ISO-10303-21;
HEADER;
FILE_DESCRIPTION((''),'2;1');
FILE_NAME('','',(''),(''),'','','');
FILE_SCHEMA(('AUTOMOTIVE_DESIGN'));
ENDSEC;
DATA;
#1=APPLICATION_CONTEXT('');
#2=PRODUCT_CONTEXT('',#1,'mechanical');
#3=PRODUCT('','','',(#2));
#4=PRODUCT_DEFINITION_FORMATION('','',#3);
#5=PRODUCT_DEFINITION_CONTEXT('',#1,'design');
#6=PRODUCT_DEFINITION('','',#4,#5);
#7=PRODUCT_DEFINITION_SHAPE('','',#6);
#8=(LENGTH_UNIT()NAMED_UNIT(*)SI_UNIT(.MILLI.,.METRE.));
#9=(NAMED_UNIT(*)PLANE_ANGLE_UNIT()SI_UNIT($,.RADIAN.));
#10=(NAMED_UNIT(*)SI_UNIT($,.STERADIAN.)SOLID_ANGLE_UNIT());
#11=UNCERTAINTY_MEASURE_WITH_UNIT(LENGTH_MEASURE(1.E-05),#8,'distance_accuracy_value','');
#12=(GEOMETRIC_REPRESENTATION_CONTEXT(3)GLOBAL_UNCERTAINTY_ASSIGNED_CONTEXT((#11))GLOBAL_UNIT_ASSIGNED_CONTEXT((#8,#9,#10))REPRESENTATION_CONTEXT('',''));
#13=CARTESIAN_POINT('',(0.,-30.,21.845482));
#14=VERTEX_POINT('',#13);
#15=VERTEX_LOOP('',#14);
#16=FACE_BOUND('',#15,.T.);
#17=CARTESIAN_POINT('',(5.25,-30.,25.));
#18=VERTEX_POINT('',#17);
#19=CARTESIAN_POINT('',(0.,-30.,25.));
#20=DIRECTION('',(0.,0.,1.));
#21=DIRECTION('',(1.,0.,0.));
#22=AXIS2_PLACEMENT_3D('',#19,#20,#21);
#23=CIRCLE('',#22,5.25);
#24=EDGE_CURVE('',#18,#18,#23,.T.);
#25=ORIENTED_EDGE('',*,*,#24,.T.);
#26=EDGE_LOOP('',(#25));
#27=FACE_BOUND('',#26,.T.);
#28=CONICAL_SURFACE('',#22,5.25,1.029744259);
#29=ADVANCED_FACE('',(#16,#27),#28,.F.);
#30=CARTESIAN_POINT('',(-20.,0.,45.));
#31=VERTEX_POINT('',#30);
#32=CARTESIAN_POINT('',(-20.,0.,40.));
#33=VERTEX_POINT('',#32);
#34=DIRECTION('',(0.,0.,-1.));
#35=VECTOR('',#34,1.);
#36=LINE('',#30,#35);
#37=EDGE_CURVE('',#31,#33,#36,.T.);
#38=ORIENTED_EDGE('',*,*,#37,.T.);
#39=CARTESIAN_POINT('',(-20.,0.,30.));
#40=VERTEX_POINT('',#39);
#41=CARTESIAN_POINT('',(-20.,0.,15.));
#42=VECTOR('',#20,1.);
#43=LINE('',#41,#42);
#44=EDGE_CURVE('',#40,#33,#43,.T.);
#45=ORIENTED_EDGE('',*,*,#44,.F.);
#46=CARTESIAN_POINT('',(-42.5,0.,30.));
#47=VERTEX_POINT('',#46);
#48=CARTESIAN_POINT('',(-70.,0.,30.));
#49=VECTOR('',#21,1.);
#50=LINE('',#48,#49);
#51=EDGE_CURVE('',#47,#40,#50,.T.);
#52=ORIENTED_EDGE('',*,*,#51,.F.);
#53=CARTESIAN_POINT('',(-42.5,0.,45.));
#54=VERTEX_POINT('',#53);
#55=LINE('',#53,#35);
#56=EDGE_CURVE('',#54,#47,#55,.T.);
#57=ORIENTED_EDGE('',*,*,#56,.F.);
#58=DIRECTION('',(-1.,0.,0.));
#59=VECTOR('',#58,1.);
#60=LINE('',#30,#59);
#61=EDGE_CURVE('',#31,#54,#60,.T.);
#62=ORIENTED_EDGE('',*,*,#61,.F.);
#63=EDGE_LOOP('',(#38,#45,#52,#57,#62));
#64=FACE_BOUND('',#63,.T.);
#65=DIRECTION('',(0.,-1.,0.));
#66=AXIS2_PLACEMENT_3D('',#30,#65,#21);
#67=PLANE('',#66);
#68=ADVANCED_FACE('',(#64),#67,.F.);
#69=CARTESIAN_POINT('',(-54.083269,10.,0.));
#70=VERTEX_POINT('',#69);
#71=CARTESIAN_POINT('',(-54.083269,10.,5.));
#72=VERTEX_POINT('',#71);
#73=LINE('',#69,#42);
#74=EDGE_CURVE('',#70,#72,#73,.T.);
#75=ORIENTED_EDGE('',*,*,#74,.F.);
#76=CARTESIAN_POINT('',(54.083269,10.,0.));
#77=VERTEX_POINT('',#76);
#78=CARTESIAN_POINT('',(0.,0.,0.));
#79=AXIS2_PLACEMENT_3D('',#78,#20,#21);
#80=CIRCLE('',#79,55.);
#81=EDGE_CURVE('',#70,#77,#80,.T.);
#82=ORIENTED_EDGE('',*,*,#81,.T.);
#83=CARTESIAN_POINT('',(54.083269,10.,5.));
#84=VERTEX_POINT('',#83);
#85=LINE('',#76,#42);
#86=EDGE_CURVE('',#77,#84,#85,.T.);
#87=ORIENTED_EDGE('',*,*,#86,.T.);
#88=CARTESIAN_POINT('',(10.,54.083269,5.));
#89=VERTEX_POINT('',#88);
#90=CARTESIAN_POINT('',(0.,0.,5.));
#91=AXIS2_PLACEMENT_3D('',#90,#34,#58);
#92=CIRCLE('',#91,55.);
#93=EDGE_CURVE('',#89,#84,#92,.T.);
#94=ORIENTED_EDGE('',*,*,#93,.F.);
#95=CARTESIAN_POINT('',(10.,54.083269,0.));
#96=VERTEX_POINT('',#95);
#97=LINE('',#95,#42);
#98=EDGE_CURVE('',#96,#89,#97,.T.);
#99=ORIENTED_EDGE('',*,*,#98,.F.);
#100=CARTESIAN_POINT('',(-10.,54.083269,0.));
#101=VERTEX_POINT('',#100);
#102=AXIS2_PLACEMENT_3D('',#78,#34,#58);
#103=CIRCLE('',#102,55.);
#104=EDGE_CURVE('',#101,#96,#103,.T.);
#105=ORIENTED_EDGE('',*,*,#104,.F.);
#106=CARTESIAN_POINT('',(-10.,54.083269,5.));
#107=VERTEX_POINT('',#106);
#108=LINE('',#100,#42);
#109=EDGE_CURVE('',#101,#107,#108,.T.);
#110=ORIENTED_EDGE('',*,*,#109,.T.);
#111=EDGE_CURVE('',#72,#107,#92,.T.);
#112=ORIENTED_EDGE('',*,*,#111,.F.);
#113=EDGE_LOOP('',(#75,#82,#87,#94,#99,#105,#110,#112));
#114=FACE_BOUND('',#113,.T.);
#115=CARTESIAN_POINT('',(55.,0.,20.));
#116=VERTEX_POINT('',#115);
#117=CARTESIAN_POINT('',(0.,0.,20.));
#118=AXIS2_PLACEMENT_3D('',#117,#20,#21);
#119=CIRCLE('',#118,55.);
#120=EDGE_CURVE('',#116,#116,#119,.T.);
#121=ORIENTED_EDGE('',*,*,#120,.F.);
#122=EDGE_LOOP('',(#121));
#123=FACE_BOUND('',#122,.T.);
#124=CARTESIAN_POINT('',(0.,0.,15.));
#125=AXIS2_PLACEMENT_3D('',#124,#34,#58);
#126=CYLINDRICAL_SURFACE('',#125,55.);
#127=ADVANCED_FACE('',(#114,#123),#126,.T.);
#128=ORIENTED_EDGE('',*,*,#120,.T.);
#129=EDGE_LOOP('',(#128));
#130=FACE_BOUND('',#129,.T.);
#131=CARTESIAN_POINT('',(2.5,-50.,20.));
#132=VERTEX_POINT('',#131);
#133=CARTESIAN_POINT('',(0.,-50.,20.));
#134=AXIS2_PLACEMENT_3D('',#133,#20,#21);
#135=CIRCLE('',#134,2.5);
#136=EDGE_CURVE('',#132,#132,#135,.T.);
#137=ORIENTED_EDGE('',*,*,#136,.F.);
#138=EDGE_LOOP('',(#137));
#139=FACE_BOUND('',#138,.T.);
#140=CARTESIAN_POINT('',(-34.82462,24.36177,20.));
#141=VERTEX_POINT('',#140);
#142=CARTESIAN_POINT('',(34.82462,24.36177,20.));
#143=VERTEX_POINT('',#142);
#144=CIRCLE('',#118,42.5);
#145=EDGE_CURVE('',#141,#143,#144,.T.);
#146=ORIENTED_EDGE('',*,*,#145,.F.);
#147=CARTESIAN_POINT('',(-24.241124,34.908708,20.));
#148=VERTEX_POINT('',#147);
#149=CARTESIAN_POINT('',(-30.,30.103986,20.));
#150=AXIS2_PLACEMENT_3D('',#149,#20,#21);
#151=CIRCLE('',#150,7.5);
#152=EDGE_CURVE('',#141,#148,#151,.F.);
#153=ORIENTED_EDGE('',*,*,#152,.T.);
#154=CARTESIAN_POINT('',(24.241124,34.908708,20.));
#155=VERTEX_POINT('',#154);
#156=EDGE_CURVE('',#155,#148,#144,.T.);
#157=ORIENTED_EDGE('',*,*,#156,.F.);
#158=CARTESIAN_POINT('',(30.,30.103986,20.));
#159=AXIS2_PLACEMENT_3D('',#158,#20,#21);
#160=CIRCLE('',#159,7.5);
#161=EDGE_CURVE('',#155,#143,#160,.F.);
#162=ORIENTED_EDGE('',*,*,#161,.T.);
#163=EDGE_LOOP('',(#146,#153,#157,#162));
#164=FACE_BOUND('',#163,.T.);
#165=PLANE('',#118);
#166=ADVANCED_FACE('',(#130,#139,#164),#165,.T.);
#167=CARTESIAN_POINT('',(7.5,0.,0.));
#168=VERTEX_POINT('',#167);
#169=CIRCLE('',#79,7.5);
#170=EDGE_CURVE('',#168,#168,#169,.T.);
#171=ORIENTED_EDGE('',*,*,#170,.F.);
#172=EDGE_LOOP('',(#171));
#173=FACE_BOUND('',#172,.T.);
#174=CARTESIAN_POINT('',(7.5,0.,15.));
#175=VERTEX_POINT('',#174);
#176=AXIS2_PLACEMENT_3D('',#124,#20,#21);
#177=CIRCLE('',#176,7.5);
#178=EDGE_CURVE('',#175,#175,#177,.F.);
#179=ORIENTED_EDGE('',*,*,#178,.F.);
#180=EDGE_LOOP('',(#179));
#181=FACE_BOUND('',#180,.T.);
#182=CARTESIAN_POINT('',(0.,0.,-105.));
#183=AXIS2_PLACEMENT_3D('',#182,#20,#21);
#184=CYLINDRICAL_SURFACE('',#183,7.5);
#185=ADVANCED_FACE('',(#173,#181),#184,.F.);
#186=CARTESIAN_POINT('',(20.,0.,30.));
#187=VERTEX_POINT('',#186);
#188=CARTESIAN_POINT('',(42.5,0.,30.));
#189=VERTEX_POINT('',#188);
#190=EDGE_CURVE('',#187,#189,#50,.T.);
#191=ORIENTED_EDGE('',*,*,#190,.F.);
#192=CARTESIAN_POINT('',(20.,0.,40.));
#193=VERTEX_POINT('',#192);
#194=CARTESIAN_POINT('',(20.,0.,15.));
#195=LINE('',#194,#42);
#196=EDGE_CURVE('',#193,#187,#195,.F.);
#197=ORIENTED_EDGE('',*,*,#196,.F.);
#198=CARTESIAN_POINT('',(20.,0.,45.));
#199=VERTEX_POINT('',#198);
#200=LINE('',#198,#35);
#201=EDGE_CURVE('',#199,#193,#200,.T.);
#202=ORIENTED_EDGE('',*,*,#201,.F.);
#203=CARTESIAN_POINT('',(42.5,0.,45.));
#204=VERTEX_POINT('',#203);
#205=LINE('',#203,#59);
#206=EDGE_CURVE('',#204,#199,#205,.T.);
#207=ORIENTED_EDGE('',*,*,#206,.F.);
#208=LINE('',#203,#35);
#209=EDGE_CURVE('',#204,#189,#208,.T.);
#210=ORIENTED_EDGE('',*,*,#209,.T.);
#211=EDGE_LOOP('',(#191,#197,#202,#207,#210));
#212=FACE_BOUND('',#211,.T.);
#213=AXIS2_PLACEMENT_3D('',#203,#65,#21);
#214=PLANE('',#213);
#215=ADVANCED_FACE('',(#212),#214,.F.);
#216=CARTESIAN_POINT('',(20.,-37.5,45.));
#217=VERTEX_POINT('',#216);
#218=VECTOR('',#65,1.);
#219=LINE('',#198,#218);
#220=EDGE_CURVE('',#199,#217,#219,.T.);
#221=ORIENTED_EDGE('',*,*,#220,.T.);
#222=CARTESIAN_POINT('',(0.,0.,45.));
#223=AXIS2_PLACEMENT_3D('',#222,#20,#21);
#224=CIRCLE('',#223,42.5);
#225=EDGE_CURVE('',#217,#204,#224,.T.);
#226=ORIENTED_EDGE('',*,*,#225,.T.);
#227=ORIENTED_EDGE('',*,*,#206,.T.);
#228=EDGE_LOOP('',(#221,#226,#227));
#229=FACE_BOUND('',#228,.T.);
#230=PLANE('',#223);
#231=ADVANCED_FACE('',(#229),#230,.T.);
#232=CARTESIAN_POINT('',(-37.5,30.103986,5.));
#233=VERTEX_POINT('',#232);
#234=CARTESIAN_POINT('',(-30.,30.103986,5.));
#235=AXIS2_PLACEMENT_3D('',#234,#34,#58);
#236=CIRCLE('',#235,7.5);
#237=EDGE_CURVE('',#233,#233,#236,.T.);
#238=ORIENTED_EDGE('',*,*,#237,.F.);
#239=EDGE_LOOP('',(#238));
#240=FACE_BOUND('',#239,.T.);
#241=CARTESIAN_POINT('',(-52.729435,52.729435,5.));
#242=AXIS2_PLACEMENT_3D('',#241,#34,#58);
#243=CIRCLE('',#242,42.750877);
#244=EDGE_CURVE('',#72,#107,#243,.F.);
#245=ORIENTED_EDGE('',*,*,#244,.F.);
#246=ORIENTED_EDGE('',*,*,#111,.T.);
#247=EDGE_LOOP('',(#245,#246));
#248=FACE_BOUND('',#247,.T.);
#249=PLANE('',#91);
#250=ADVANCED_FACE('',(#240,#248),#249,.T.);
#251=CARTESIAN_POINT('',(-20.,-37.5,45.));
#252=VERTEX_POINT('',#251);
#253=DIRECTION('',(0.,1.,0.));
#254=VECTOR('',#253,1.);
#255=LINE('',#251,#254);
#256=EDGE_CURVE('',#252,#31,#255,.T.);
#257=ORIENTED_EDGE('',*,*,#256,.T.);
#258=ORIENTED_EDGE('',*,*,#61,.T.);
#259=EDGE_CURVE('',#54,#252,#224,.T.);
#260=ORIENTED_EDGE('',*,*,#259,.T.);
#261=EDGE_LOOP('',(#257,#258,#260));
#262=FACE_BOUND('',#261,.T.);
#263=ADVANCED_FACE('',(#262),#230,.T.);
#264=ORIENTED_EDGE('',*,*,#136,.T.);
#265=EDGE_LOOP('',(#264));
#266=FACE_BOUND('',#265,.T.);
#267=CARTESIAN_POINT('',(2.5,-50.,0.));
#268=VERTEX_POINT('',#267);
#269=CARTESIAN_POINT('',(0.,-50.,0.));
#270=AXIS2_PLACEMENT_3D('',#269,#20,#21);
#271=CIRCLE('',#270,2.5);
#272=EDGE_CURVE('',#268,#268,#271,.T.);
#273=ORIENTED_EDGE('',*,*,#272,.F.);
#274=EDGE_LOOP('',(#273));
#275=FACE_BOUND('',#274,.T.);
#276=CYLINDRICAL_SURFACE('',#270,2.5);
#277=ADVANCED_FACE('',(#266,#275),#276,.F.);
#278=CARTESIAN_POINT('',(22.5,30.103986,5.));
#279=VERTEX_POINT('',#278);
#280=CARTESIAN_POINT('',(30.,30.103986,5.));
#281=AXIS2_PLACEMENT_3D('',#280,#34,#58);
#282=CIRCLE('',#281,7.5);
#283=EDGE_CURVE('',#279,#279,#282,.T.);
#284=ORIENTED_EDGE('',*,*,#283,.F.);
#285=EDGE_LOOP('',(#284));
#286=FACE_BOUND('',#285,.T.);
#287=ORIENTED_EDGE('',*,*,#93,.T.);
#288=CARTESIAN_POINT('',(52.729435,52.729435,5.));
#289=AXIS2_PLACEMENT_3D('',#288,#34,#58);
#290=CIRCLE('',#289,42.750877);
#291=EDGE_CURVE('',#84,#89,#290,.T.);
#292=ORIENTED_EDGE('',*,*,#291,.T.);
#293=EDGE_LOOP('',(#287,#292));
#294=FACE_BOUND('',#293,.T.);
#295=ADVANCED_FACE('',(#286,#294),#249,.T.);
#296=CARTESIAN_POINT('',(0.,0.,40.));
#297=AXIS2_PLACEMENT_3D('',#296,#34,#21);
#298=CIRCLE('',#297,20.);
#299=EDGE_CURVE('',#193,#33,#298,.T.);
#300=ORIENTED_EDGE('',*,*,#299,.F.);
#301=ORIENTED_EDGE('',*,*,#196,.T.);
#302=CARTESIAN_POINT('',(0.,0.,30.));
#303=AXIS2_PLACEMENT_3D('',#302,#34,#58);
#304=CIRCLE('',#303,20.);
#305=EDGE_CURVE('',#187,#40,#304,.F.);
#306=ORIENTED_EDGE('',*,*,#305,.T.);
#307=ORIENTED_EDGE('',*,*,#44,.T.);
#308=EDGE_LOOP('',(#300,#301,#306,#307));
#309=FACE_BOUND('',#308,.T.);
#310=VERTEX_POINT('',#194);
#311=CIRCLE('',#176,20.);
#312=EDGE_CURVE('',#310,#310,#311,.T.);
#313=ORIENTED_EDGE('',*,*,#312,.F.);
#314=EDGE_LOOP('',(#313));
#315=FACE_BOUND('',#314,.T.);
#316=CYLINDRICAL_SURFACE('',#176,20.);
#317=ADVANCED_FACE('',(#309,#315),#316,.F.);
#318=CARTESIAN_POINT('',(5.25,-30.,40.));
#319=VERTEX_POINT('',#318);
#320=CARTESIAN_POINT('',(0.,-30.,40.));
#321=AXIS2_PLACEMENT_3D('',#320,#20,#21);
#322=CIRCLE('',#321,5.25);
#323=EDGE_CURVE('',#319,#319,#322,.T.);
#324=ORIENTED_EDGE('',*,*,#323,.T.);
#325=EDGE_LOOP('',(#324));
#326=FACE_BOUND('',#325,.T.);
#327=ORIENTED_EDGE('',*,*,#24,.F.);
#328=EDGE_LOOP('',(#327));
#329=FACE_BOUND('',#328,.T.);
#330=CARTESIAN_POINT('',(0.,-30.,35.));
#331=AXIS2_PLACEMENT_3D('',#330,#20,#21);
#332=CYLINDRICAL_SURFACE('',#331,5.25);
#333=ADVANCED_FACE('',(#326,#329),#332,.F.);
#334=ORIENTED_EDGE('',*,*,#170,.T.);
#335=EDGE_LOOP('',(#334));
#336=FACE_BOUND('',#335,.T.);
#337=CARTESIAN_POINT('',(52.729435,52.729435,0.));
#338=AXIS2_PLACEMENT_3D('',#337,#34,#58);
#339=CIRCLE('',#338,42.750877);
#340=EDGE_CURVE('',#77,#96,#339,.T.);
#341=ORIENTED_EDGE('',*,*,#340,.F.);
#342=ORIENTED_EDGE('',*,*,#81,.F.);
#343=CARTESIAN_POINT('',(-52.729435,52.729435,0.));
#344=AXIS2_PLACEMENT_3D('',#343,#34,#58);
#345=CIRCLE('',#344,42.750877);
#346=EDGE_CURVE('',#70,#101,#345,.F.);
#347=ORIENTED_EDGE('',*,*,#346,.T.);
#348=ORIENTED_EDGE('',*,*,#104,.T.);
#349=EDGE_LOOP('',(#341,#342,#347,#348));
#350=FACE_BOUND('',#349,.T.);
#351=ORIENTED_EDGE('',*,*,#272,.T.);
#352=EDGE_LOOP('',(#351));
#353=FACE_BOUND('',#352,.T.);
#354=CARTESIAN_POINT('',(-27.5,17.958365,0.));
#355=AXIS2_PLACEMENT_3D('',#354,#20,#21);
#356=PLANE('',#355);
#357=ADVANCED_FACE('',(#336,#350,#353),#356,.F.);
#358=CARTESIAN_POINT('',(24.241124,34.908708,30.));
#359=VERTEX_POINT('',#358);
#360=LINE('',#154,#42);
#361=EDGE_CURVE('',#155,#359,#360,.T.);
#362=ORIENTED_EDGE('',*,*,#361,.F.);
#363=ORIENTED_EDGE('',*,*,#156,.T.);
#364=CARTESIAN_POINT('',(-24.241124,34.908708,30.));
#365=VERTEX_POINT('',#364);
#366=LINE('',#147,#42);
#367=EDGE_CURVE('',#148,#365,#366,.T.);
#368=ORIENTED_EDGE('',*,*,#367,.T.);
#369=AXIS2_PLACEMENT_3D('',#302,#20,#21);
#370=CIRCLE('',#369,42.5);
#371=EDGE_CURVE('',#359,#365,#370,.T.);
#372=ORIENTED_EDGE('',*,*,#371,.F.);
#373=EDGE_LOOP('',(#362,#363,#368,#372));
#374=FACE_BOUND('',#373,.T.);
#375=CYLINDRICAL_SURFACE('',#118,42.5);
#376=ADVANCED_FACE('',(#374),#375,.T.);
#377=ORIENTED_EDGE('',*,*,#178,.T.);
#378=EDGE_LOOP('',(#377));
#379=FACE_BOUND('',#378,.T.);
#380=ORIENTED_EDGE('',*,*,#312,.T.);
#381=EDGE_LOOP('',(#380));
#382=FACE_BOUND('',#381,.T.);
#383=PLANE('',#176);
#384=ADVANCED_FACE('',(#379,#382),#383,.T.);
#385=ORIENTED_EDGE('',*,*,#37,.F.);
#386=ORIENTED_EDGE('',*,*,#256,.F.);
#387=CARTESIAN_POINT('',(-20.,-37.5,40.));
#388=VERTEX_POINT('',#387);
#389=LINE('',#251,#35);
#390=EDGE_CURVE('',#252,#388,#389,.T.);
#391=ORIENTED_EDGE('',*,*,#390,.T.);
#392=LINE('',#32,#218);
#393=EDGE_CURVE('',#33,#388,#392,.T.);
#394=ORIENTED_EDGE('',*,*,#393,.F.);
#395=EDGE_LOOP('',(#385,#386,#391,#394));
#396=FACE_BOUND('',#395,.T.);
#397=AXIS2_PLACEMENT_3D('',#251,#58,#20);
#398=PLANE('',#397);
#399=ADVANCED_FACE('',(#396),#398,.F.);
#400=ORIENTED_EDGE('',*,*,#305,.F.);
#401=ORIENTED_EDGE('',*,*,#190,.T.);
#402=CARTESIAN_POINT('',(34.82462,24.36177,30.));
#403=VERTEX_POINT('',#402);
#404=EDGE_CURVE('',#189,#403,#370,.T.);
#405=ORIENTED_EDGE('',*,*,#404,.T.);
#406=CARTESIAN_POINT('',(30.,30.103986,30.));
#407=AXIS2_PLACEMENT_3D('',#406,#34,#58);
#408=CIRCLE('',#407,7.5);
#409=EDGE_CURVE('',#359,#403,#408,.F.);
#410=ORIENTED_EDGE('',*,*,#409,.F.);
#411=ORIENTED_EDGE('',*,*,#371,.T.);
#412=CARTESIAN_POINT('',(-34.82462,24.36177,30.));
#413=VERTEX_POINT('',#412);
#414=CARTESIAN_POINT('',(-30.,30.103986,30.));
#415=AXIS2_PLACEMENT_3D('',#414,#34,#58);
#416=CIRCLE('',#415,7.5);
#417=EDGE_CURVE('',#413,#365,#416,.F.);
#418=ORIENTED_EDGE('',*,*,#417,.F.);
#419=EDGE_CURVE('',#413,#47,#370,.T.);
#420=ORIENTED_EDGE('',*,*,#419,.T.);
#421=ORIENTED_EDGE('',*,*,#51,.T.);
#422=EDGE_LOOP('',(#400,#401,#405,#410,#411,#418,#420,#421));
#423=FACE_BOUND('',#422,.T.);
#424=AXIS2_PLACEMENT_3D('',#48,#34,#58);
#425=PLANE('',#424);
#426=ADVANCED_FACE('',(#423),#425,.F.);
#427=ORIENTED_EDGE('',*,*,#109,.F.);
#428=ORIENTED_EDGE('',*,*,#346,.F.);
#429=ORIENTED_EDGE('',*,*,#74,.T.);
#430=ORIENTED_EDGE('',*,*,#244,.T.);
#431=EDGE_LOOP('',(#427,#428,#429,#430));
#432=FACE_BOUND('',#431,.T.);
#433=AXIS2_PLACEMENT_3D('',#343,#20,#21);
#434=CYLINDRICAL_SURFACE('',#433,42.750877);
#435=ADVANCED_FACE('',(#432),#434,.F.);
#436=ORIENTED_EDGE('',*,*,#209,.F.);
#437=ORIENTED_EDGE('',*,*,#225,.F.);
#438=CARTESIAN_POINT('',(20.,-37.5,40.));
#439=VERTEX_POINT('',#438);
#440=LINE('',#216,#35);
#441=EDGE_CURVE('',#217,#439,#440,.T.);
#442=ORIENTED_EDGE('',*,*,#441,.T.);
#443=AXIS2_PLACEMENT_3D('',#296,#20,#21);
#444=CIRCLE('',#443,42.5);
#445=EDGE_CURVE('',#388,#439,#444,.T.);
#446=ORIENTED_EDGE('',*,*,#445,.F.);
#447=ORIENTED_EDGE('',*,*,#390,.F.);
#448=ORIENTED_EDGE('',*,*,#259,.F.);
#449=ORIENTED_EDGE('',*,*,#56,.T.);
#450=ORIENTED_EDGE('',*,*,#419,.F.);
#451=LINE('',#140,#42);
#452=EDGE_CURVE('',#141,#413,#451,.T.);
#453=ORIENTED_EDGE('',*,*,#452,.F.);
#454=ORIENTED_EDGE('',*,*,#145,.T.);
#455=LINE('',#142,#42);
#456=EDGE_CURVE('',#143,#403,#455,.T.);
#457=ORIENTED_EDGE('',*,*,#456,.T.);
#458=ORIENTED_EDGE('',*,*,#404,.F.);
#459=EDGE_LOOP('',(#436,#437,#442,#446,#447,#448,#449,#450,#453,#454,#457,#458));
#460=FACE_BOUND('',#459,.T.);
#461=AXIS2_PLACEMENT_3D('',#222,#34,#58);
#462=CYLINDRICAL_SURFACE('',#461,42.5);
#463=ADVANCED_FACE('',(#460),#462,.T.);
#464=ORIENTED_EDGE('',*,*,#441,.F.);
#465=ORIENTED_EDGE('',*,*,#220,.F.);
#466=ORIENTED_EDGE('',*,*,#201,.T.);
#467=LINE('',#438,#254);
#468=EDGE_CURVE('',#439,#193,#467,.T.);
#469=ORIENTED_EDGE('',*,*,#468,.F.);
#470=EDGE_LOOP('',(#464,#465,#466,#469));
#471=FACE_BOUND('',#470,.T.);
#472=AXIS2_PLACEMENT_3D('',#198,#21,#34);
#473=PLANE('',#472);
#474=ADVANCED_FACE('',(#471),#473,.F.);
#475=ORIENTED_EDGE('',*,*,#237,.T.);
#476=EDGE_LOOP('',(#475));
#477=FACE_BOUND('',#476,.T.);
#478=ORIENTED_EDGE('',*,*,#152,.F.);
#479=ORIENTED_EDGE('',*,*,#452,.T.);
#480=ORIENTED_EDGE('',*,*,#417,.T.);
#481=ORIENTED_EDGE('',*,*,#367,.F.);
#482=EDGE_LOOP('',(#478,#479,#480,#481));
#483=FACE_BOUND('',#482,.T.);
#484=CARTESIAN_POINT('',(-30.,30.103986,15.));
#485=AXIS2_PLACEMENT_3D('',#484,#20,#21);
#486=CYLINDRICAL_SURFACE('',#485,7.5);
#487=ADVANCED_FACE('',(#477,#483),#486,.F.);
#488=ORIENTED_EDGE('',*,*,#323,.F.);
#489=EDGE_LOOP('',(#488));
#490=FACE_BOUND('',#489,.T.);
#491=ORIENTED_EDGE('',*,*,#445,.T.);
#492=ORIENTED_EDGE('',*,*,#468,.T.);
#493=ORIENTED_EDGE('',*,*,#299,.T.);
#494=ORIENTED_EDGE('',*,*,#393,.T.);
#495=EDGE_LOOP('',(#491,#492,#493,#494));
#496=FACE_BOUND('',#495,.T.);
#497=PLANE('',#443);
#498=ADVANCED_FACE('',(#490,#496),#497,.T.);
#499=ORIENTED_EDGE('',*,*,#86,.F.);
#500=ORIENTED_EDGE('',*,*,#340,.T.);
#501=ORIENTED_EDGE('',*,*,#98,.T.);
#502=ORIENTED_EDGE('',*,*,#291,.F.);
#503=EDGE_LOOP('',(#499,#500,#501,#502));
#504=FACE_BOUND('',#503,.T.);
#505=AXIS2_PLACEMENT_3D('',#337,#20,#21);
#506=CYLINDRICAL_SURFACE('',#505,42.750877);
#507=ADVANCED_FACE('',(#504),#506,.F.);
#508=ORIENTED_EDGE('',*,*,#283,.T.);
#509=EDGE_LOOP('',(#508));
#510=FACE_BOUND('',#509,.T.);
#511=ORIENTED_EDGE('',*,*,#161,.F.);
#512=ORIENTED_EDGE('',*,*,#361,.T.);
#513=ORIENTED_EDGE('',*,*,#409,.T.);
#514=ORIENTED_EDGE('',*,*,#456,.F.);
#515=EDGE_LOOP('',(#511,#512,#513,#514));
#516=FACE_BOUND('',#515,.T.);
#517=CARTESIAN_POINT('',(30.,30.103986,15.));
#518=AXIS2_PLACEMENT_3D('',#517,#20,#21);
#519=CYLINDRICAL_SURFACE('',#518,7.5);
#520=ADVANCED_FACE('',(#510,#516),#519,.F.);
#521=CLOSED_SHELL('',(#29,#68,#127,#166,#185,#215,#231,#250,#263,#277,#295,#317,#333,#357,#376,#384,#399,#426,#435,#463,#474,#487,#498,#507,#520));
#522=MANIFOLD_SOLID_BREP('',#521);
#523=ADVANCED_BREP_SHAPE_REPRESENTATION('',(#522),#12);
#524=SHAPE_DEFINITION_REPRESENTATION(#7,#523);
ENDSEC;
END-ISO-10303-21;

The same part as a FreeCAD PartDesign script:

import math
import FreeCAD as App
import Part
import Sketcher
from FreeCAD import Vector
Q = App.Units.Quantity


def add_polygon(sketch, points):
    """Adds a closed chain of lines whose ends are joined by coincident constraints."""
    first, n = sketch.GeometryCount, len(points)
    for a, b in zip(points, points[1:] + points[:1]):
        sketch.addGeometry(Part.LineSegment(App.Vector(*a, 0), App.Vector(*b, 0)), False)
    for i in range(n):
        sketch.addConstraint(Sketcher.Constraint("Coincident", first + i, 2, first + (i + 1) % n, 1))

doc = App.newDocument("Part")
body = doc.addObject("PartDesign::Body", "Body")

sketch1 = doc.addObject("Sketcher::SketchObject", "Sketch")
body.addObject(sketch1)
sketch1.AttachmentSupport = (doc.XY_Plane, [""])
sketch1.MapMode = "FlatFace"
sketch1.addGeometry(Part.ArcOfCircle(Part.Circle(Vector(0, 0, 0), Vector(0, 0, 1), 55), math.radians(180), math.radians(360)), False)
sketch1.addGeometry(Part.ArcOfCircle(Part.Circle(Vector(55, 45, 0), Vector(0, 0, 1), 45), math.radians(-180), math.radians(-90)), False)
sketch1.addGeometry(Part.ArcOfCircle(Part.Circle(Vector(0, -9, 0), Vector(0, 0, 1), 55), math.radians(80), math.radians(100)), False)
sketch1.addGeometry(Part.ArcOfCircle(Part.Circle(Vector(-55, 45, 0), Vector(0, 0, 1), 45), math.radians(-90), math.radians(0)), False)
sketch1.addConstraint(Sketcher.Constraint("Coincident", 0, 2, 1, 2))
sketch1.addConstraint(Sketcher.Constraint("Coincident", 1, 1, 2, 1))
sketch1.addConstraint(Sketcher.Constraint("Coincident", 2, 2, 3, 2))
sketch1.addConstraint(Sketcher.Constraint("Coincident", 3, 1, 0, 1))
sketch1.addConstraint(Sketcher.Constraint("Coincident", 0, 3, -1, 1))
sketch1.addConstraint(Sketcher.Constraint("Equal", 0, 2))
sketch1.addConstraint(Sketcher.Constraint("Equal", 1, 3))
sketch1.addConstraint(Sketcher.Constraint("Symmetric", 1, 3, 3, 3, -2))
sketch1.addConstraint(Sketcher.Constraint("PointOnObject", 2, 3, -2))
sketch1.addConstraint(Sketcher.Constraint("PointOnObject", 0, 2, -1))
sketch1.addConstraint(Sketcher.Constraint("Horizontal", 3, 3, 1, 1))
sketch1.addConstraint(Sketcher.Constraint("Vertical", 1, 3, 0, 2))
sketch1.addConstraint(Sketcher.Constraint("Radius", 0, Q("55 mm")))
sketch1.addConstraint(Sketcher.Constraint("Radius", 1, Q("45 mm")))
pad1 = doc.addObject("PartDesign::Pad", "Pad")
body.addObject(pad1)
pad1.Profile = sketch1
pad1.Length = 15

sketch2 = doc.addObject("Sketcher::SketchObject", "Sketch001")
body.addObject(sketch2)
sketch2.AttachmentSupport = (doc.XY_Plane, [""])
sketch2.MapMode = "FlatFace"
sketch2.AttachmentOffset = App.Placement(Vector(0, 0, 15), App.Rotation())
sketch2.addGeometry(Part.Circle(Vector(0, 0, 0), Vector(0, 0, 1), 42), False)
sketch2.addConstraint(Sketcher.Constraint("Coincident", 0, 3, -1, 1))
sketch2.addConstraint(Sketcher.Constraint("Diameter", 0, Q("85 mm")))
pad2 = doc.addObject("PartDesign::Pad", "Pad001")
body.addObject(pad2)
pad2.Profile = sketch2
pad2.Length = 10

sketch3 = doc.addObject("Sketcher::SketchObject", "Sketch002")
body.addObject(sketch3)
sketch3.AttachmentSupport = (doc.XY_Plane, [""])
sketch3.MapMode = "FlatFace"
sketch3.AttachmentOffset = App.Placement(Vector(0, 0, 25), App.Rotation())
sketch3.addGeometry(Part.ArcOfCircle(Part.Circle(Vector(-30, 30, 0), Vector(0, 0, 1), 10), math.radians(-128), math.radians(38)), False)
sketch3.addGeometry(Part.ArcOfCircle(Part.Circle(Vector(0, 0, 0), Vector(0, 0, 1), 42), math.radians(122), math.radians(149)), False)
sketch3.addGeometry(Part.ArcOfCircle(Part.Circle(Vector(30, 30, 0), Vector(0, 0, 1), 10), math.radians(142), math.radians(308)), False)
sketch3.addGeometry(Part.ArcOfCircle(Part.Circle(Vector(0, 0, 0), Vector(0, 0, 1), 42), math.radians(31), math.radians(58)), False)
sketch3.addConstraint(Sketcher.Constraint("Coincident", 0, 1, 1, 2))
sketch3.addConstraint(Sketcher.Constraint("Coincident", 1, 1, 0, 2))
sketch3.addConstraint(Sketcher.Constraint("Coincident", 2, 1, 3, 2))
sketch3.addConstraint(Sketcher.Constraint("Coincident", 3, 1, 2, 2))
sketch3.addConstraint(Sketcher.Constraint("Coincident", 1, 3, -1, 1))
sketch3.addConstraint(Sketcher.Constraint("Coincident", 3, 3, -1, 1))
sketch3.addConstraint(Sketcher.Constraint("Equal", 0, 2))
sketch3.addConstraint(Sketcher.Constraint("Equal", 1, 3))
sketch3.addConstraint(Sketcher.Constraint("Symmetric", 0, 3, 2, 3, -2))
sketch3.addConstraint(Sketcher.Constraint("Radius", 0, Q("10 mm")))
sketch3.addConstraint(Sketcher.Constraint("Radius", 1, Q("42.5 mm")))
sketch3.addConstraint(Sketcher.Constraint("DistanceY", -1, 1, 0, 3, Q("30 mm")))
sketch3.addConstraint(Sketcher.Constraint("DistanceY", 0, 1, 1, 1, Q("14.068202 mm")))
pocket1 = doc.addObject("PartDesign::Pocket", "Pocket")
body.addObject(pocket1)
pocket1.Profile = sketch3
pocket1.Length = 10

sketch4 = doc.addObject("Sketcher::SketchObject", "Sketch003")
body.addObject(sketch4)
sketch4.AttachmentSupport = (doc.XY_Plane, [""])
sketch4.MapMode = "FlatFace"
sketch4.AttachmentOffset = App.Placement(Vector(0, 0, 25), App.Rotation())
sketch4.addGeometry(Part.Circle(Vector(0, 0, 0), Vector(0, 0, 1), 55), False)
sketch4.addConstraint(Sketcher.Constraint("Coincident", 0, 3, -1, 1))
sketch4.addConstraint(Sketcher.Constraint("Diameter", 0, Q("110 mm")))
pad3 = doc.addObject("PartDesign::Pad", "Pad002")
body.addObject(pad3)
pad3.Profile = sketch4
pad3.Length = 15

sketch5 = doc.addObject("Sketcher::SketchObject", "Sketch004")
body.addObject(sketch5)
sketch5.AttachmentSupport = (doc.XY_Plane, [""])
sketch5.MapMode = "FlatFace"
sketch5.AttachmentOffset = App.Placement(Vector(0, 0, 40), App.Rotation())
sketch5.addGeometry(Part.Circle(Vector(0, 0, 0), Vector(0, 0, 1), 42), False)
sketch5.addConstraint(Sketcher.Constraint("Coincident", 0, 3, -1, 1))
sketch5.addConstraint(Sketcher.Constraint("Diameter", 0, Q("85 mm")))
pocket2 = doc.addObject("PartDesign::Pocket", "Pocket001")
body.addObject(pocket2)
pocket2.Profile = sketch5
pocket2.Length = 5

sketch6 = doc.addObject("Sketcher::SketchObject", "Sketch005")
body.addObject(sketch6)
sketch6.AttachmentSupport = (doc.XY_Plane, [""])
sketch6.MapMode = "FlatFace"
sketch6.AttachmentOffset = App.Placement(Vector(0, 0, 35), App.Rotation())
sketch6.addGeometry(Part.LineSegment(Vector(-20, -38, 0), Vector(-20, 0, 0)), False)
sketch6.addGeometry(Part.LineSegment(Vector(-20, 0, 0), Vector(-42, 0, 0)), False)
sketch6.addGeometry(Part.ArcOfCircle(Part.Circle(Vector(0, 0, 0), Vector(0, 0, 1), 42), math.radians(180), math.radians(242)), False)
sketch6.addGeometry(Part.LineSegment(Vector(42, 0, 0), Vector(20, 0, 0)), False)
sketch6.addGeometry(Part.LineSegment(Vector(20, 0, 0), Vector(20, -38, 0)), False)
sketch6.addGeometry(Part.ArcOfCircle(Part.Circle(Vector(0, 0, 0), Vector(0, 0, 1), 42), math.radians(-62), math.radians(0)), False)
sketch6.addConstraint(Sketcher.Constraint("Coincident", 0, 2, 1, 1))
sketch6.addConstraint(Sketcher.Constraint("Coincident", 1, 2, 2, 1))
sketch6.addConstraint(Sketcher.Constraint("Coincident", 2, 2, 0, 1))
sketch6.addConstraint(Sketcher.Constraint("Coincident", 3, 2, 4, 1))
sketch6.addConstraint(Sketcher.Constraint("Coincident", 4, 2, 5, 1))
sketch6.addConstraint(Sketcher.Constraint("Coincident", 5, 2, 3, 1))
sketch6.addConstraint(Sketcher.Constraint("Vertical", 0))
sketch6.addConstraint(Sketcher.Constraint("Horizontal", 1))
sketch6.addConstraint(Sketcher.Constraint("Horizontal", 3))
sketch6.addConstraint(Sketcher.Constraint("Vertical", 4))
sketch6.addConstraint(Sketcher.Constraint("Coincident", 2, 3, -1, 1))
sketch6.addConstraint(Sketcher.Constraint("Coincident", 5, 3, -1, 1))
sketch6.addConstraint(Sketcher.Constraint("Equal", 2, 5))
sketch6.addConstraint(Sketcher.Constraint("Symmetric", 0, 2, 3, 2, -1, 1))
sketch6.addConstraint(Sketcher.Constraint("PointOnObject", 0, 2, -1))
sketch6.addConstraint(Sketcher.Constraint("Radius", 2, Q("42.5 mm")))
sketch6.addConstraint(Sketcher.Constraint("DistanceX", 1, 2, 1, 1, Q("22.5 mm")))
pad4 = doc.addObject("PartDesign::Pad", "Pad003")
body.addObject(pad4)
pad4.Profile = sketch6
pad4.Length = 10

sketch7 = doc.addObject("Sketcher::SketchObject", "Sketch006")
body.addObject(sketch7)
sketch7.AttachmentSupport = (doc.XY_Plane, [""])
sketch7.MapMode = "FlatFace"
sketch7.AttachmentOffset = App.Placement(Vector(0, 0, 35), App.Rotation())
sketch7.addGeometry(Part.Circle(Vector(0, 0, 0), Vector(0, 0, 1), 20), False)
sketch7.addGeometry(Part.Circle(Vector(0, 0, 0), Vector(0, 0, 1), 8), False)
sketch7.addConstraint(Sketcher.Constraint("Coincident", 0, 3, -1, 1))
sketch7.addConstraint(Sketcher.Constraint("Coincident", 1, 3, -1, 1))
sketch7.addConstraint(Sketcher.Constraint("Diameter", 0, Q("40 mm")))
sketch7.addConstraint(Sketcher.Constraint("Diameter", 1, Q("15 mm")))
pocket3 = doc.addObject("PartDesign::Pocket", "Pocket002")
body.addObject(pocket3)
pocket3.Profile = sketch7
pocket3.Length = 20

sketch8 = doc.addObject("Sketcher::SketchObject", "Sketch007")
body.addObject(sketch8)
sketch8.AttachmentSupport = (doc.XY_Plane, [""])
sketch8.MapMode = "FlatFace"
sketch8.AttachmentOffset = App.Placement(Vector(0, 0, 40), App.Rotation())
sketch8.addGeometry(Part.Circle(Vector(0, -50, 0), Vector(0, 0, 1), 2.5), False)
sketch8.addConstraint(Sketcher.Constraint("PointOnObject", 0, 3, -2))
sketch8.addConstraint(Sketcher.Constraint("Diameter", 0, Q("5 mm")))
sketch8.addConstraint(Sketcher.Constraint("DistanceY", 0, 3, -1, 1, Q("50 mm")))
pocket4 = doc.addObject("PartDesign::Pocket", "Pocket003")
body.addObject(pocket4)
pocket4.Profile = sketch8
pocket4.Length = 15

sketch9 = doc.addObject("Sketcher::SketchObject", "Sketch008")
body.addObject(sketch9)
sketch9.AttachmentSupport = (doc.XY_Plane, [""])
sketch9.MapMode = "FlatFace"
sketch9.AttachmentOffset = App.Placement(Vector(0, 0, 35), App.Rotation())
sketch9.addGeometry(Part.Circle(Vector(-30, 30, 0), Vector(0, 0, 1), 8), False)
sketch9.addGeometry(Part.Circle(Vector(30, 30, 0), Vector(0, 0, 1), 8), False)
sketch9.addConstraint(Sketcher.Constraint("Equal", 0, 1))
sketch9.addConstraint(Sketcher.Constraint("Symmetric", 0, 3, 1, 3, -2))
sketch9.addConstraint(Sketcher.Constraint("Diameter", 0, Q("15 mm")))
sketch9.addConstraint(Sketcher.Constraint("DistanceX", 0, 3, -1, 1, Q("30 mm")))
sketch9.addConstraint(Sketcher.Constraint("DistanceY", -1, 1, 0, 3, Q("30.103986 mm")))
pocket5 = doc.addObject("PartDesign::Pocket", "Pocket004")
body.addObject(pocket5)
pocket5.Profile = sketch9
pocket5.Length = 20

sketch10 = doc.addObject("Sketcher::SketchObject", "Sketch009")
body.addObject(sketch10)
sketch10.AttachmentSupport = (doc.XY_Plane, [""])
sketch10.MapMode = "FlatFace"
sketch10.AttachmentOffset = App.Placement(Vector(0, 0, 40), App.Rotation())
sketch10.addGeometry(Part.ArcOfCircle(Part.Circle(Vector(-30, 30, 0), Vector(0, 0, 1), 8), math.radians(-130), math.radians(0)), False)
sketch10.addGeometry(Part.ArcOfCircle(Part.Circle(Vector(-30, 30, 0), Vector(0, 0, 1), 8), math.radians(0), math.radians(40)), False)
sketch10.addGeometry(Part.ArcOfCircle(Part.Circle(Vector(-30, 30, 0), Vector(0, 0, 1), 8), math.radians(40), math.radians(230)), False)
sketch10.addGeometry(Part.ArcOfCircle(Part.Circle(Vector(30, 30, 0), Vector(0, 0, 1), 8), math.radians(0), math.radians(140)), False)
sketch10.addGeometry(Part.ArcOfCircle(Part.Circle(Vector(30, 30, 0), Vector(0, 0, 1), 8), math.radians(140), math.radians(310)), False)
sketch10.addGeometry(Part.ArcOfCircle(Part.Circle(Vector(30, 30, 0), Vector(0, 0, 1), 8), math.radians(-50), math.radians(0)), False)
sketch10.addConstraint(Sketcher.Constraint("Tangent", 0, 2, 1, 1))
sketch10.addConstraint(Sketcher.Constraint("Tangent", 1, 2, 2, 1))
sketch10.addConstraint(Sketcher.Constraint("Tangent", 2, 2, 0, 1))
sketch10.addConstraint(Sketcher.Constraint("Tangent", 3, 2, 4, 1))
sketch10.addConstraint(Sketcher.Constraint("Tangent", 4, 2, 5, 1))
sketch10.addConstraint(Sketcher.Constraint("Tangent", 5, 2, 3, 1))
sketch10.addConstraint(Sketcher.Constraint("Equal", 2, 3))
sketch10.addConstraint(Sketcher.Constraint("Symmetric", 0, 3, 3, 3, -2))
sketch10.addConstraint(Sketcher.Constraint("Horizontal", 5, 3, 0, 2))
sketch10.addConstraint(Sketcher.Constraint("Horizontal", 1, 2, 3, 2))
sketch10.addConstraint(Sketcher.Constraint("Horizontal", 2, 2, 4, 2))
sketch10.addConstraint(Sketcher.Constraint("Horizontal", 0, 2, 5, 2))
sketch10.addConstraint(Sketcher.Constraint("Radius", 0, Q("7.5 mm")))
sketch10.addConstraint(Sketcher.Constraint("DistanceX", 0, 3, -1, 1, Q("30 mm")))
sketch10.addConstraint(Sketcher.Constraint("DistanceY", -1, 1, 1, 2, Q("34.908708 mm")))
sketch10.addConstraint(Sketcher.Constraint("DistanceX", 2, 2, -1, 1, Q("34.82462 mm")))
sketch10.addConstraint(Sketcher.Constraint("DistanceY", -1, 1, 2, 2, Q("24.36177 mm")))
pocket6 = doc.addObject("PartDesign::Pocket", "Pocket005")
body.addObject(pocket6)
pocket6.Profile = sketch10
pocket6.Length = 20

sketch11 = doc.addObject("Sketcher::SketchObject", "Sketch010")
body.addObject(sketch11)
sketch11.AttachmentSupport = (doc.XY_Plane, [""])
sketch11.MapMode = "FlatFace"
sketch11.AttachmentOffset = App.Placement(Vector(0, 0, 15), App.Rotation())
sketch11.addGeometry(Part.Circle(Vector(0, 0, 0), Vector(0, 0, 1), 55), False)
sketch11.addConstraint(Sketcher.Constraint("Coincident", 0, 3, -1, 1))
sketch11.addConstraint(Sketcher.Constraint("Diameter", 0, Q("110 mm")))
pad5 = doc.addObject("PartDesign::Pad", "Pad004")
body.addObject(pad5)
pad5.Profile = sketch11
pad5.Length = 10
pad5.Reversed = True

sketch12 = doc.addObject("Sketcher::SketchObject", "Sketch011")
body.addObject(sketch12)
sketch12.AttachmentSupport = (doc.XY_Plane, [""])
sketch12.MapMode = "FlatFace"
sketch12.AttachmentOffset = App.Placement(Vector(0, 0, 15), App.Rotation())
sketch12.addGeometry(Part.Circle(Vector(0, 0, 0), Vector(0, 0, 1), 55), False)
sketch12.addConstraint(Sketcher.Constraint("Coincident", 0, 3, -1, 1))
sketch12.addConstraint(Sketcher.Constraint("Diameter", 0, Q("110 mm")))
pad6 = doc.addObject("PartDesign::Pad", "Pad005")
body.addObject(pad6)
pad6.Profile = sketch12
pad6.Length = 10

sketch13 = doc.addObject("Sketcher::SketchObject", "Sketch012")
body.addObject(sketch13)
sketch13.AttachmentSupport = (doc.YZ_Plane, [""])
sketch13.MapMode = "FlatFace"
add_polygon(sketch13, [(55, 45), (0, 45), (0, 30), (55, 30)])
sketch13.addConstraint(Sketcher.Constraint("Horizontal", 0))
sketch13.addConstraint(Sketcher.Constraint("Vertical", 1))
sketch13.addConstraint(Sketcher.Constraint("Horizontal", 2))
sketch13.addConstraint(Sketcher.Constraint("Vertical", 3))
sketch13.addConstraint(Sketcher.Constraint("PointOnObject", 0, 2, -2))
sketch13.addConstraint(Sketcher.Constraint("DistanceX", 0, 2, 0, 1, Q("55 mm")))
sketch13.addConstraint(Sketcher.Constraint("DistanceY", 1, 2, 1, 1, Q("15 mm")))
sketch13.addConstraint(Sketcher.Constraint("DistanceY", -1, 1, 0, 2, Q("45 mm")))
pocket7 = doc.addObject("PartDesign::Pocket", "Pocket006")
body.addObject(pocket7)
pocket7.Profile = sketch13
pocket7.Length = 140
pocket7.Midplane = True

sketch14 = doc.addObject("Sketcher::SketchObject", "Sketch013")
body.addObject(sketch14)
sketch14.AttachmentSupport = (doc.XY_Plane, [""])
sketch14.MapMode = "FlatFace"
sketch14.AttachmentOffset = App.Placement(Vector(0, 0, 25), App.Rotation())
sketch14.addGeometry(Part.Circle(Vector(30, 30, 0), Vector(0, 0, 1), 8), False)
sketch14.addGeometry(Part.Circle(Vector(-30, 30, 0), Vector(0, 0, 1), 8), False)
sketch14.addConstraint(Sketcher.Constraint("Equal", 0, 1))
sketch14.addConstraint(Sketcher.Constraint("Symmetric", 0, 3, 1, 3, -2))
sketch14.addConstraint(Sketcher.Constraint("Diameter", 0, Q("15 mm")))
sketch14.addConstraint(Sketcher.Constraint("DistanceX", -1, 1, 0, 3, Q("30 mm")))
sketch14.addConstraint(Sketcher.Constraint("DistanceY", -1, 1, 0, 3, Q("30.103986 mm")))
pocket8 = doc.addObject("PartDesign::Pocket", "Pocket007")
body.addObject(pocket8)
pocket8.Profile = sketch14
pocket8.Length = 140

sketch15 = doc.addObject("Sketcher::SketchObject", "Sketch014")
body.addObject(sketch15)
sketch15.AttachmentSupport = (doc.XY_Plane, [""])
sketch15.MapMode = "FlatFace"
sketch15.AttachmentOffset = App.Placement(Vector(0, 0, 35), App.Rotation())
sketch15.addGeometry(Part.Circle(Vector(0, 0, 0), Vector(0, 0, 1), 8), False)
sketch15.addConstraint(Sketcher.Constraint("Coincident", 0, 3, -1, 1))
sketch15.addConstraint(Sketcher.Constraint("Diameter", 0, Q("15 mm")))
pocket9 = doc.addObject("PartDesign::Pocket", "Pocket008")
body.addObject(pocket9)
pocket9.Profile = sketch15
pocket9.Length = 140

sketch16 = doc.addObject("Sketcher::SketchObject", "Sketch015")
body.addObject(sketch16)
sketch16.AttachmentSupport = (doc.XY_Plane, [""])
sketch16.MapMode = "FlatFace"
sketch16.AttachmentOffset = App.Placement(Vector(0, 0, 25), App.Rotation())
sketch16.addGeometry(Part.Circle(Vector(0, 0, 0), Vector(0, 0, 1), 20), False)
sketch16.addConstraint(Sketcher.Constraint("Coincident", 0, 3, -1, 1))
sketch16.addConstraint(Sketcher.Constraint("Diameter", 0, Q("40 mm")))
pocket10 = doc.addObject("PartDesign::Pocket", "Pocket009")
body.addObject(pocket10)
pocket10.Profile = sketch16
pocket10.Length = 10

sketch17 = doc.addObject("Sketcher::SketchObject", "Sketch016")
body.addObject(sketch17)
sketch17.AttachmentSupport = (doc.XY_Plane, [""])
sketch17.MapMode = "FlatFace"
sketch17.AttachmentOffset = App.Placement(Vector(0, 0, 30), App.Rotation())
sketch17.addGeometry(Part.ArcOfCircle(Part.Circle(Vector(0, 0, 0), Vector(0, 0, 1), 55), math.radians(0), math.radians(180)), False)
sketch17.addGeometry(Part.LineSegment(Vector(-55, 0, 0), Vector(-42, 0, 0)), False)
sketch17.addGeometry(Part.ArcOfCircle(Part.Circle(Vector(0, 0, 0), Vector(0, 0, 1), 42), math.radians(145), math.radians(180)), False)
sketch17.addGeometry(Part.ArcOfCircle(Part.Circle(Vector(-30, 30, 0), Vector(0, 0, 1), 8), math.radians(40), math.radians(230)), False)
sketch17.addGeometry(Part.ArcOfCircle(Part.Circle(Vector(0, 0, 0), Vector(0, 0, 1), 42), math.radians(55), math.radians(125)), False)
sketch17.addGeometry(Part.ArcOfCircle(Part.Circle(Vector(30, 30, 0), Vector(0, 0, 1), 8), math.radians(0), math.radians(140)), False)
sketch17.addGeometry(Part.ArcOfCircle(Part.Circle(Vector(30, 30, 0), Vector(0, 0, 1), 8), math.radians(-50), math.radians(0)), False)
sketch17.addGeometry(Part.ArcOfCircle(Part.Circle(Vector(0, 0, 0), Vector(0, 0, 1), 42), math.radians(0), math.radians(35)), False)
sketch17.addGeometry(Part.LineSegment(Vector(42, 0, 0), Vector(55, 0, 0)), False)
sketch17.addConstraint(Sketcher.Constraint("Coincident", 0, 2, 1, 1))
sketch17.addConstraint(Sketcher.Constraint("Coincident", 1, 2, 2, 2))
sketch17.addConstraint(Sketcher.Constraint("Coincident", 2, 1, 3, 2))
sketch17.addConstraint(Sketcher.Constraint("Coincident", 3, 1, 4, 2))
sketch17.addConstraint(Sketcher.Constraint("Coincident", 4, 1, 5, 2))
sketch17.addConstraint(Sketcher.Constraint("Tangent", 5, 1, 6, 2))
sketch17.addConstraint(Sketcher.Constraint("Coincident", 6, 1, 7, 2))
sketch17.addConstraint(Sketcher.Constraint("Coincident", 7, 1, 8, 1))
sketch17.addConstraint(Sketcher.Constraint("Coincident", 8, 2, 0, 1))
sketch17.addConstraint(Sketcher.Constraint("Horizontal", 1))
sketch17.addConstraint(Sketcher.Constraint("Horizontal", 8))
sketch17.addConstraint(Sketcher.Constraint("Coincident", 0, 3, -1, 1))
sketch17.addConstraint(Sketcher.Constraint("Coincident", 2, 3, -1, 1))
sketch17.addConstraint(Sketcher.Constraint("Coincident", 4, 3, -1, 1))
sketch17.addConstraint(Sketcher.Constraint("Coincident", 7, 3, -1, 1))
sketch17.addConstraint(Sketcher.Constraint("Equal", 2, 4))
sketch17.addConstraint(Sketcher.Constraint("Equal", 3, 5))
sketch17.addConstraint(Sketcher.Constraint("Equal", 5, 6))
sketch17.addConstraint(Sketcher.Constraint("Equal", 4, 7))
sketch17.addConstraint(Sketcher.Constraint("Symmetric", 3, 3, 5, 3, -2))
sketch17.addConstraint(Sketcher.Constraint("PointOnObject", 0, 2, -1))
sketch17.addConstraint(Sketcher.Constraint("PointOnObject", 7, 1, -1))
sketch17.addConstraint(Sketcher.Constraint("Horizontal", 6, 3, 5, 1))
sketch17.addConstraint(Sketcher.Constraint("Radius", 0, Q("55 mm")))
sketch17.addConstraint(Sketcher.Constraint("Radius", 2, Q("42.5 mm")))
sketch17.addConstraint(Sketcher.Constraint("Radius", 3, Q("7.5 mm")))
sketch17.addConstraint(Sketcher.Constraint("DistanceX", 3, 3, -1, 1, Q("30 mm")))
sketch17.addConstraint(Sketcher.Constraint("DistanceX", 2, 1, -1, 1, Q("34.82462 mm")))
pocket11 = doc.addObject("PartDesign::Pocket", "Pocket010")
body.addObject(pocket11)
pocket11.Profile = sketch17
pocket11.Length = 10

sketch18 = doc.addObject("Sketcher::SketchObject", "Sketch017")
body.addObject(sketch18)
sketch18.AttachmentSupport = (doc.XY_Plane, [""])
sketch18.MapMode = "FlatFace"
sketch18.AttachmentOffset = App.Placement(Vector(0, 0, 5), App.Rotation())
sketch18.addGeometry(Part.ArcOfCircle(Part.Circle(Vector(53, 53, 0), Vector(0, 0, 1), 43), math.radians(178), math.radians(272)), False)
sketch18.addGeometry(Part.ArcOfCircle(Part.Circle(Vector(0, 0, 0), Vector(0, 0, 1), 55), math.radians(0), math.radians(10.48)), False)
sketch18.addGeometry(Part.ArcOfCircle(Part.Circle(Vector(55, 45, 0), Vector(0, 0, 1), 45), math.radians(-180), math.radians(-90)), False)
sketch18.addGeometry(Part.ArcOfCircle(Part.Circle(Vector(0, -9, 0), Vector(0, 0, 1), 55), math.radians(80), math.radians(100)), False)
sketch18.addGeometry(Part.ArcOfCircle(Part.Circle(Vector(-55, 45, 0), Vector(0, 0, 1), 45), math.radians(-90), math.radians(0)), False)
sketch18.addGeometry(Part.ArcOfCircle(Part.Circle(Vector(0, 0, 0), Vector(0, 0, 1), 55), math.radians(169.52), math.radians(180)), False)
sketch18.addGeometry(Part.ArcOfCircle(Part.Circle(Vector(-53, 53, 0), Vector(0, 0, 1), 43), math.radians(-92), math.radians(2)), False)
sketch18.addGeometry(Part.ArcOfCircle(Part.Circle(Vector(0, 0, 0), Vector(0, 0, 1), 55), math.radians(80), math.radians(100)), False)
sketch18.addConstraint(Sketcher.Constraint("Coincident", 0, 2, 1, 2))
sketch18.addConstraint(Sketcher.Constraint("Coincident", 1, 1, 2, 2))
sketch18.addConstraint(Sketcher.Constraint("Coincident", 2, 1, 3, 1))
sketch18.addConstraint(Sketcher.Constraint("Coincident", 3, 2, 4, 2))
sketch18.addConstraint(Sketcher.Constraint("Coincident", 4, 1, 5, 2))
sketch18.addConstraint(Sketcher.Constraint("Coincident", 5, 1, 6, 1))
sketch18.addConstraint(Sketcher.Constraint("Coincident", 6, 2, 7, 2))
sketch18.addConstraint(Sketcher.Constraint("Coincident", 7, 1, 0, 1))
sketch18.addConstraint(Sketcher.Constraint("Coincident", 1, 3, -1, 1))
sketch18.addConstraint(Sketcher.Constraint("Coincident", 5, 3, -1, 1))
sketch18.addConstraint(Sketcher.Constraint("Coincident", 7, 3, -1, 1))
sketch18.addConstraint(Sketcher.Constraint("Equal", 1, 3))
sketch18.addConstraint(Sketcher.Constraint("Equal", 2, 4))
sketch18.addConstraint(Sketcher.Constraint("Equal", 3, 5))
sketch18.addConstraint(Sketcher.Constraint("Equal", 0, 6))
sketch18.addConstraint(Sketcher.Constraint("Equal", 5, 7))
sketch18.addConstraint(Sketcher.Constraint("Symmetric", 2, 3, 4, 3, -2))
sketch18.addConstraint(Sketcher.Constraint("Symmetric", 0, 3, 6, 3, -2))
sketch18.addConstraint(Sketcher.Constraint("PointOnObject", 3, 3, -2))
sketch18.addConstraint(Sketcher.Constraint("PointOnObject", 1, 1, -1))
sketch18.addConstraint(Sketcher.Constraint("Horizontal", 4, 3, 2, 1))
sketch18.addConstraint(Sketcher.Constraint("Vertical", 2, 3, 1, 1))
sketch18.addConstraint(Sketcher.Constraint("Vertical", 3, 2, 6, 2))
sketch18.addConstraint(Sketcher.Constraint("Radius", 1, Q("55 mm")))
sketch18.addConstraint(Sketcher.Constraint("Radius", 2, Q("45 mm")))
sketch18.addConstraint(Sketcher.Constraint("DistanceY", -1, 1, 0, 2, Q("10 mm")))
sketch18.addConstraint(Sketcher.Constraint("Radius", 0, Q("42.750877 mm")))
pad7 = doc.addObject("PartDesign::Pad", "Pad006")
body.addObject(pad7)
pad7.Profile = sketch18
pad7.Length = 5
pad7.Reversed = True

sketch19 = doc.addObject("Sketcher::SketchObject", "Sketch018")
body.addObject(sketch19)
sketch19.AttachmentSupport = (doc.XY_Plane, [""])
sketch19.MapMode = "FlatFace"
sketch19.AttachmentOffset = App.Placement(Vector(0, 0, 35), App.Rotation())
sketch19.addGeometry(Part.Circle(Vector(0, -30, 0), Vector(0, 0, 1), 5), False)
sketch19.addConstraint(Sketcher.Constraint("PointOnObject", 0, 3, -2))
sketch19.addConstraint(Sketcher.Constraint("Diameter", 0, Q("10.5 mm")))
sketch19.addConstraint(Sketcher.Constraint("DistanceY", 0, 3, -1, 1, Q("30 mm")))
doc.recompute()
hole = doc.addObject("PartDesign::Hole", "Hole")
body.addObject(hole)
hole.Profile = sketch19
hole.ThreadType = "None"
hole.Diameter = 10.5
hole.DepthType = "Dimension"
hole.Depth = 10
hole.DrillPoint = "Angled"
hole.DrillPointAngle = 118

sketch20 = doc.addObject("Sketcher::SketchObject", "Sketch019")
body.addObject(sketch20)
sketch20.AttachmentSupport = (doc.XZ_Plane, [""])
sketch20.MapMode = "FlatFace"
add_polygon(sketch20, [(-55, 20), (-55, 45), (-42, 45), (-42, 20)])
add_polygon(sketch20, [(42, 20), (42, 45), (55, 45), (55, 20)])
sketch20.addConstraint(Sketcher.Constraint("Vertical", 0))
sketch20.addConstraint(Sketcher.Constraint("Horizontal", 1))
sketch20.addConstraint(Sketcher.Constraint("Vertical", 2))
sketch20.addConstraint(Sketcher.Constraint("Horizontal", 3))
sketch20.addConstraint(Sketcher.Constraint("Vertical", 4))
sketch20.addConstraint(Sketcher.Constraint("Horizontal", 5))
sketch20.addConstraint(Sketcher.Constraint("Vertical", 6))
sketch20.addConstraint(Sketcher.Constraint("Horizontal", 7))
sketch20.addConstraint(Sketcher.Constraint("Symmetric", 1, 2, 4, 2, -2))
sketch20.addConstraint(Sketcher.Constraint("Symmetric", 3, 2, 6, 2, -2))
sketch20.addConstraint(Sketcher.Constraint("DistanceY", 0, 1, 0, 2, Q("25 mm")))
sketch20.addConstraint(Sketcher.Constraint("DistanceX", 1, 1, 1, 2, Q("12.5 mm")))
sketch20.addConstraint(Sketcher.Constraint("DistanceX", 0, 2, -1, 1, Q("55 mm")))
sketch20.addConstraint(Sketcher.Constraint("DistanceY", -1, 1, 0, 2, Q("45 mm")))
pocket12 = doc.addObject("PartDesign::Pocket", "Pocket011")
body.addObject(pocket12)
pocket12.Profile = sketch20
pocket12.Length = 75
pocket12.Reversed = True

sketch21 = doc.addObject("Sketcher::SketchObject", "Sketch020")
body.addObject(sketch21)
sketch21.AttachmentSupport = (doc.XY_Plane, [""])
sketch21.MapMode = "FlatFace"
sketch21.AttachmentOffset = App.Placement(Vector(0, 0, 40), App.Rotation())
sketch21.addGeometry(Part.LineSegment(Vector(-42, 0, 0), Vector(-42, -35, 0)), False)
sketch21.addGeometry(Part.ArcOfCircle(Part.Circle(Vector(0, 0, 0), Vector(0, 0, 1), 55), math.radians(-141), math.radians(-39)), False)
sketch21.addGeometry(Part.LineSegment(Vector(42, -35, 0), Vector(42, 0, 0)), False)
sketch21.addGeometry(Part.ArcOfCircle(Part.Circle(Vector(0, 0, 0), Vector(0, 0, 1), 42), math.radians(-62), math.radians(0)), False)
sketch21.addGeometry(Part.ArcOfCircle(Part.Circle(Vector(0, 0, 0), Vector(0, 0, 1), 42), math.radians(-118), math.radians(-62)), False)
sketch21.addGeometry(Part.ArcOfCircle(Part.Circle(Vector(0, 0, 0), Vector(0, 0, 1), 42), math.radians(180), math.radians(242)), False)
sketch21.addConstraint(Sketcher.Constraint("Coincident", 0, 2, 1, 1))
sketch21.addConstraint(Sketcher.Constraint("Coincident", 1, 2, 2, 1))
sketch21.addConstraint(Sketcher.Constraint("Tangent", 2, 2, 3, 2))
sketch21.addConstraint(Sketcher.Constraint("Tangent", 3, 1, 4, 2))
sketch21.addConstraint(Sketcher.Constraint("Tangent", 4, 1, 5, 2))
sketch21.addConstraint(Sketcher.Constraint("Tangent", 5, 1, 0, 1))
sketch21.addConstraint(Sketcher.Constraint("Vertical", 0))
sketch21.addConstraint(Sketcher.Constraint("Vertical", 2))
sketch21.addConstraint(Sketcher.Constraint("Coincident", 1, 3, -1, 1))
sketch21.addConstraint(Sketcher.Constraint("Coincident", 3, 3, -1, 1))
sketch21.addConstraint(Sketcher.Constraint("Coincident", 5, 3, -1, 1))
sketch21.addConstraint(Sketcher.Constraint("Horizontal", 3, 1, 4, 1))
sketch21.addConstraint(Sketcher.Constraint("Radius", 1, Q("55 mm")))
sketch21.addConstraint(Sketcher.Constraint("Radius", 3, Q("42.5 mm")))
sketch21.addConstraint(Sketcher.Constraint("DistanceX", -1, 1, 3, 1, Q("20 mm")))
pocket13 = doc.addObject("PartDesign::Pocket", "Pocket012")
body.addObject(pocket13)
pocket13.Profile = sketch21
pocket13.Length = 20

sketch22 = doc.addObject("Sketcher::SketchObject", "Sketch021")
body.addObject(sketch22)
sketch22.AttachmentSupport = (doc.XY_Plane, [""])
sketch22.MapMode = "FlatFace"
sketch22.AttachmentOffset = App.Placement(Vector(0, 0, 20), App.Rotation())
sketch22.addGeometry(Part.Circle(Vector(0, -50, 0), Vector(0, 0, 1), 2.5), False)
sketch22.addConstraint(Sketcher.Constraint("PointOnObject", 0, 3, -2))
sketch22.addConstraint(Sketcher.Constraint("Diameter", 0, Q("5 mm")))
sketch22.addConstraint(Sketcher.Constraint("DistanceY", 0, 3, -1, 1, Q("50 mm")))
pocket14 = doc.addObject("PartDesign::Pocket", "Pocket013")
body.addObject(pocket14)
pocket14.Profile = sketch22
pocket14.Length = 20

sketch23 = doc.addObject("Sketcher::SketchObject", "Sketch022")
body.addObject(sketch23)
sketch23.AttachmentSupport = (doc.XY_Plane, [""])
sketch23.MapMode = "FlatFace"
sketch23.AttachmentOffset = App.Placement(Vector(0, 0, 35), App.Rotation())
sketch23.addGeometry(Part.LineSegment(Vector(-20, 0, 0), Vector(-20, -38, 0)), False)
sketch23.addGeometry(Part.ArcOfCircle(Part.Circle(Vector(0, 0, 0), Vector(0, 0, 1), 42), math.radians(-118), math.radians(-62)), False)
sketch23.addGeometry(Part.LineSegment(Vector(20, -38, 0), Vector(20, 0, 0)), False)
sketch23.addGeometry(Part.ArcOfCircle(Part.Circle(Vector(0, 0, 0), Vector(0, 0, 1), 20), math.radians(180), math.radians(360)), False)
sketch23.addGeometry(Part.Circle(Vector(0, -30, 0), Vector(0, 0, 1), 5), False)
sketch23.addConstraint(Sketcher.Constraint("Coincident", 0, 2, 1, 1))
sketch23.addConstraint(Sketcher.Constraint("Coincident", 1, 2, 2, 1))
sketch23.addConstraint(Sketcher.Constraint("Tangent", 2, 2, 3, 2))
sketch23.addConstraint(Sketcher.Constraint("Tangent", 3, 1, 0, 1))
sketch23.addConstraint(Sketcher.Constraint("Vertical", 0))
sketch23.addConstraint(Sketcher.Constraint("Vertical", 2))
sketch23.addConstraint(Sketcher.Constraint("Coincident", 1, 3, -1, 1))
sketch23.addConstraint(Sketcher.Constraint("Coincident", 3, 3, -1, 1))
sketch23.addConstraint(Sketcher.Constraint("PointOnObject", 4, 3, -2))
sketch23.addConstraint(Sketcher.Constraint("Radius", 3, Q("20 mm")))
sketch23.addConstraint(Sketcher.Constraint("Diameter", 4, Q("10.5 mm")))
sketch23.addConstraint(Sketcher.Constraint("Radius", 1, Q("42.5 mm")))
sketch23.addConstraint(Sketcher.Constraint("DistanceY", 4, 3, -1, 1, Q("30 mm")))
pad8 = doc.addObject("PartDesign::Pad", "Pad007")
body.addObject(pad8)
pad8.Profile = sketch23
pad8.Length = 5

doc.recompute()
